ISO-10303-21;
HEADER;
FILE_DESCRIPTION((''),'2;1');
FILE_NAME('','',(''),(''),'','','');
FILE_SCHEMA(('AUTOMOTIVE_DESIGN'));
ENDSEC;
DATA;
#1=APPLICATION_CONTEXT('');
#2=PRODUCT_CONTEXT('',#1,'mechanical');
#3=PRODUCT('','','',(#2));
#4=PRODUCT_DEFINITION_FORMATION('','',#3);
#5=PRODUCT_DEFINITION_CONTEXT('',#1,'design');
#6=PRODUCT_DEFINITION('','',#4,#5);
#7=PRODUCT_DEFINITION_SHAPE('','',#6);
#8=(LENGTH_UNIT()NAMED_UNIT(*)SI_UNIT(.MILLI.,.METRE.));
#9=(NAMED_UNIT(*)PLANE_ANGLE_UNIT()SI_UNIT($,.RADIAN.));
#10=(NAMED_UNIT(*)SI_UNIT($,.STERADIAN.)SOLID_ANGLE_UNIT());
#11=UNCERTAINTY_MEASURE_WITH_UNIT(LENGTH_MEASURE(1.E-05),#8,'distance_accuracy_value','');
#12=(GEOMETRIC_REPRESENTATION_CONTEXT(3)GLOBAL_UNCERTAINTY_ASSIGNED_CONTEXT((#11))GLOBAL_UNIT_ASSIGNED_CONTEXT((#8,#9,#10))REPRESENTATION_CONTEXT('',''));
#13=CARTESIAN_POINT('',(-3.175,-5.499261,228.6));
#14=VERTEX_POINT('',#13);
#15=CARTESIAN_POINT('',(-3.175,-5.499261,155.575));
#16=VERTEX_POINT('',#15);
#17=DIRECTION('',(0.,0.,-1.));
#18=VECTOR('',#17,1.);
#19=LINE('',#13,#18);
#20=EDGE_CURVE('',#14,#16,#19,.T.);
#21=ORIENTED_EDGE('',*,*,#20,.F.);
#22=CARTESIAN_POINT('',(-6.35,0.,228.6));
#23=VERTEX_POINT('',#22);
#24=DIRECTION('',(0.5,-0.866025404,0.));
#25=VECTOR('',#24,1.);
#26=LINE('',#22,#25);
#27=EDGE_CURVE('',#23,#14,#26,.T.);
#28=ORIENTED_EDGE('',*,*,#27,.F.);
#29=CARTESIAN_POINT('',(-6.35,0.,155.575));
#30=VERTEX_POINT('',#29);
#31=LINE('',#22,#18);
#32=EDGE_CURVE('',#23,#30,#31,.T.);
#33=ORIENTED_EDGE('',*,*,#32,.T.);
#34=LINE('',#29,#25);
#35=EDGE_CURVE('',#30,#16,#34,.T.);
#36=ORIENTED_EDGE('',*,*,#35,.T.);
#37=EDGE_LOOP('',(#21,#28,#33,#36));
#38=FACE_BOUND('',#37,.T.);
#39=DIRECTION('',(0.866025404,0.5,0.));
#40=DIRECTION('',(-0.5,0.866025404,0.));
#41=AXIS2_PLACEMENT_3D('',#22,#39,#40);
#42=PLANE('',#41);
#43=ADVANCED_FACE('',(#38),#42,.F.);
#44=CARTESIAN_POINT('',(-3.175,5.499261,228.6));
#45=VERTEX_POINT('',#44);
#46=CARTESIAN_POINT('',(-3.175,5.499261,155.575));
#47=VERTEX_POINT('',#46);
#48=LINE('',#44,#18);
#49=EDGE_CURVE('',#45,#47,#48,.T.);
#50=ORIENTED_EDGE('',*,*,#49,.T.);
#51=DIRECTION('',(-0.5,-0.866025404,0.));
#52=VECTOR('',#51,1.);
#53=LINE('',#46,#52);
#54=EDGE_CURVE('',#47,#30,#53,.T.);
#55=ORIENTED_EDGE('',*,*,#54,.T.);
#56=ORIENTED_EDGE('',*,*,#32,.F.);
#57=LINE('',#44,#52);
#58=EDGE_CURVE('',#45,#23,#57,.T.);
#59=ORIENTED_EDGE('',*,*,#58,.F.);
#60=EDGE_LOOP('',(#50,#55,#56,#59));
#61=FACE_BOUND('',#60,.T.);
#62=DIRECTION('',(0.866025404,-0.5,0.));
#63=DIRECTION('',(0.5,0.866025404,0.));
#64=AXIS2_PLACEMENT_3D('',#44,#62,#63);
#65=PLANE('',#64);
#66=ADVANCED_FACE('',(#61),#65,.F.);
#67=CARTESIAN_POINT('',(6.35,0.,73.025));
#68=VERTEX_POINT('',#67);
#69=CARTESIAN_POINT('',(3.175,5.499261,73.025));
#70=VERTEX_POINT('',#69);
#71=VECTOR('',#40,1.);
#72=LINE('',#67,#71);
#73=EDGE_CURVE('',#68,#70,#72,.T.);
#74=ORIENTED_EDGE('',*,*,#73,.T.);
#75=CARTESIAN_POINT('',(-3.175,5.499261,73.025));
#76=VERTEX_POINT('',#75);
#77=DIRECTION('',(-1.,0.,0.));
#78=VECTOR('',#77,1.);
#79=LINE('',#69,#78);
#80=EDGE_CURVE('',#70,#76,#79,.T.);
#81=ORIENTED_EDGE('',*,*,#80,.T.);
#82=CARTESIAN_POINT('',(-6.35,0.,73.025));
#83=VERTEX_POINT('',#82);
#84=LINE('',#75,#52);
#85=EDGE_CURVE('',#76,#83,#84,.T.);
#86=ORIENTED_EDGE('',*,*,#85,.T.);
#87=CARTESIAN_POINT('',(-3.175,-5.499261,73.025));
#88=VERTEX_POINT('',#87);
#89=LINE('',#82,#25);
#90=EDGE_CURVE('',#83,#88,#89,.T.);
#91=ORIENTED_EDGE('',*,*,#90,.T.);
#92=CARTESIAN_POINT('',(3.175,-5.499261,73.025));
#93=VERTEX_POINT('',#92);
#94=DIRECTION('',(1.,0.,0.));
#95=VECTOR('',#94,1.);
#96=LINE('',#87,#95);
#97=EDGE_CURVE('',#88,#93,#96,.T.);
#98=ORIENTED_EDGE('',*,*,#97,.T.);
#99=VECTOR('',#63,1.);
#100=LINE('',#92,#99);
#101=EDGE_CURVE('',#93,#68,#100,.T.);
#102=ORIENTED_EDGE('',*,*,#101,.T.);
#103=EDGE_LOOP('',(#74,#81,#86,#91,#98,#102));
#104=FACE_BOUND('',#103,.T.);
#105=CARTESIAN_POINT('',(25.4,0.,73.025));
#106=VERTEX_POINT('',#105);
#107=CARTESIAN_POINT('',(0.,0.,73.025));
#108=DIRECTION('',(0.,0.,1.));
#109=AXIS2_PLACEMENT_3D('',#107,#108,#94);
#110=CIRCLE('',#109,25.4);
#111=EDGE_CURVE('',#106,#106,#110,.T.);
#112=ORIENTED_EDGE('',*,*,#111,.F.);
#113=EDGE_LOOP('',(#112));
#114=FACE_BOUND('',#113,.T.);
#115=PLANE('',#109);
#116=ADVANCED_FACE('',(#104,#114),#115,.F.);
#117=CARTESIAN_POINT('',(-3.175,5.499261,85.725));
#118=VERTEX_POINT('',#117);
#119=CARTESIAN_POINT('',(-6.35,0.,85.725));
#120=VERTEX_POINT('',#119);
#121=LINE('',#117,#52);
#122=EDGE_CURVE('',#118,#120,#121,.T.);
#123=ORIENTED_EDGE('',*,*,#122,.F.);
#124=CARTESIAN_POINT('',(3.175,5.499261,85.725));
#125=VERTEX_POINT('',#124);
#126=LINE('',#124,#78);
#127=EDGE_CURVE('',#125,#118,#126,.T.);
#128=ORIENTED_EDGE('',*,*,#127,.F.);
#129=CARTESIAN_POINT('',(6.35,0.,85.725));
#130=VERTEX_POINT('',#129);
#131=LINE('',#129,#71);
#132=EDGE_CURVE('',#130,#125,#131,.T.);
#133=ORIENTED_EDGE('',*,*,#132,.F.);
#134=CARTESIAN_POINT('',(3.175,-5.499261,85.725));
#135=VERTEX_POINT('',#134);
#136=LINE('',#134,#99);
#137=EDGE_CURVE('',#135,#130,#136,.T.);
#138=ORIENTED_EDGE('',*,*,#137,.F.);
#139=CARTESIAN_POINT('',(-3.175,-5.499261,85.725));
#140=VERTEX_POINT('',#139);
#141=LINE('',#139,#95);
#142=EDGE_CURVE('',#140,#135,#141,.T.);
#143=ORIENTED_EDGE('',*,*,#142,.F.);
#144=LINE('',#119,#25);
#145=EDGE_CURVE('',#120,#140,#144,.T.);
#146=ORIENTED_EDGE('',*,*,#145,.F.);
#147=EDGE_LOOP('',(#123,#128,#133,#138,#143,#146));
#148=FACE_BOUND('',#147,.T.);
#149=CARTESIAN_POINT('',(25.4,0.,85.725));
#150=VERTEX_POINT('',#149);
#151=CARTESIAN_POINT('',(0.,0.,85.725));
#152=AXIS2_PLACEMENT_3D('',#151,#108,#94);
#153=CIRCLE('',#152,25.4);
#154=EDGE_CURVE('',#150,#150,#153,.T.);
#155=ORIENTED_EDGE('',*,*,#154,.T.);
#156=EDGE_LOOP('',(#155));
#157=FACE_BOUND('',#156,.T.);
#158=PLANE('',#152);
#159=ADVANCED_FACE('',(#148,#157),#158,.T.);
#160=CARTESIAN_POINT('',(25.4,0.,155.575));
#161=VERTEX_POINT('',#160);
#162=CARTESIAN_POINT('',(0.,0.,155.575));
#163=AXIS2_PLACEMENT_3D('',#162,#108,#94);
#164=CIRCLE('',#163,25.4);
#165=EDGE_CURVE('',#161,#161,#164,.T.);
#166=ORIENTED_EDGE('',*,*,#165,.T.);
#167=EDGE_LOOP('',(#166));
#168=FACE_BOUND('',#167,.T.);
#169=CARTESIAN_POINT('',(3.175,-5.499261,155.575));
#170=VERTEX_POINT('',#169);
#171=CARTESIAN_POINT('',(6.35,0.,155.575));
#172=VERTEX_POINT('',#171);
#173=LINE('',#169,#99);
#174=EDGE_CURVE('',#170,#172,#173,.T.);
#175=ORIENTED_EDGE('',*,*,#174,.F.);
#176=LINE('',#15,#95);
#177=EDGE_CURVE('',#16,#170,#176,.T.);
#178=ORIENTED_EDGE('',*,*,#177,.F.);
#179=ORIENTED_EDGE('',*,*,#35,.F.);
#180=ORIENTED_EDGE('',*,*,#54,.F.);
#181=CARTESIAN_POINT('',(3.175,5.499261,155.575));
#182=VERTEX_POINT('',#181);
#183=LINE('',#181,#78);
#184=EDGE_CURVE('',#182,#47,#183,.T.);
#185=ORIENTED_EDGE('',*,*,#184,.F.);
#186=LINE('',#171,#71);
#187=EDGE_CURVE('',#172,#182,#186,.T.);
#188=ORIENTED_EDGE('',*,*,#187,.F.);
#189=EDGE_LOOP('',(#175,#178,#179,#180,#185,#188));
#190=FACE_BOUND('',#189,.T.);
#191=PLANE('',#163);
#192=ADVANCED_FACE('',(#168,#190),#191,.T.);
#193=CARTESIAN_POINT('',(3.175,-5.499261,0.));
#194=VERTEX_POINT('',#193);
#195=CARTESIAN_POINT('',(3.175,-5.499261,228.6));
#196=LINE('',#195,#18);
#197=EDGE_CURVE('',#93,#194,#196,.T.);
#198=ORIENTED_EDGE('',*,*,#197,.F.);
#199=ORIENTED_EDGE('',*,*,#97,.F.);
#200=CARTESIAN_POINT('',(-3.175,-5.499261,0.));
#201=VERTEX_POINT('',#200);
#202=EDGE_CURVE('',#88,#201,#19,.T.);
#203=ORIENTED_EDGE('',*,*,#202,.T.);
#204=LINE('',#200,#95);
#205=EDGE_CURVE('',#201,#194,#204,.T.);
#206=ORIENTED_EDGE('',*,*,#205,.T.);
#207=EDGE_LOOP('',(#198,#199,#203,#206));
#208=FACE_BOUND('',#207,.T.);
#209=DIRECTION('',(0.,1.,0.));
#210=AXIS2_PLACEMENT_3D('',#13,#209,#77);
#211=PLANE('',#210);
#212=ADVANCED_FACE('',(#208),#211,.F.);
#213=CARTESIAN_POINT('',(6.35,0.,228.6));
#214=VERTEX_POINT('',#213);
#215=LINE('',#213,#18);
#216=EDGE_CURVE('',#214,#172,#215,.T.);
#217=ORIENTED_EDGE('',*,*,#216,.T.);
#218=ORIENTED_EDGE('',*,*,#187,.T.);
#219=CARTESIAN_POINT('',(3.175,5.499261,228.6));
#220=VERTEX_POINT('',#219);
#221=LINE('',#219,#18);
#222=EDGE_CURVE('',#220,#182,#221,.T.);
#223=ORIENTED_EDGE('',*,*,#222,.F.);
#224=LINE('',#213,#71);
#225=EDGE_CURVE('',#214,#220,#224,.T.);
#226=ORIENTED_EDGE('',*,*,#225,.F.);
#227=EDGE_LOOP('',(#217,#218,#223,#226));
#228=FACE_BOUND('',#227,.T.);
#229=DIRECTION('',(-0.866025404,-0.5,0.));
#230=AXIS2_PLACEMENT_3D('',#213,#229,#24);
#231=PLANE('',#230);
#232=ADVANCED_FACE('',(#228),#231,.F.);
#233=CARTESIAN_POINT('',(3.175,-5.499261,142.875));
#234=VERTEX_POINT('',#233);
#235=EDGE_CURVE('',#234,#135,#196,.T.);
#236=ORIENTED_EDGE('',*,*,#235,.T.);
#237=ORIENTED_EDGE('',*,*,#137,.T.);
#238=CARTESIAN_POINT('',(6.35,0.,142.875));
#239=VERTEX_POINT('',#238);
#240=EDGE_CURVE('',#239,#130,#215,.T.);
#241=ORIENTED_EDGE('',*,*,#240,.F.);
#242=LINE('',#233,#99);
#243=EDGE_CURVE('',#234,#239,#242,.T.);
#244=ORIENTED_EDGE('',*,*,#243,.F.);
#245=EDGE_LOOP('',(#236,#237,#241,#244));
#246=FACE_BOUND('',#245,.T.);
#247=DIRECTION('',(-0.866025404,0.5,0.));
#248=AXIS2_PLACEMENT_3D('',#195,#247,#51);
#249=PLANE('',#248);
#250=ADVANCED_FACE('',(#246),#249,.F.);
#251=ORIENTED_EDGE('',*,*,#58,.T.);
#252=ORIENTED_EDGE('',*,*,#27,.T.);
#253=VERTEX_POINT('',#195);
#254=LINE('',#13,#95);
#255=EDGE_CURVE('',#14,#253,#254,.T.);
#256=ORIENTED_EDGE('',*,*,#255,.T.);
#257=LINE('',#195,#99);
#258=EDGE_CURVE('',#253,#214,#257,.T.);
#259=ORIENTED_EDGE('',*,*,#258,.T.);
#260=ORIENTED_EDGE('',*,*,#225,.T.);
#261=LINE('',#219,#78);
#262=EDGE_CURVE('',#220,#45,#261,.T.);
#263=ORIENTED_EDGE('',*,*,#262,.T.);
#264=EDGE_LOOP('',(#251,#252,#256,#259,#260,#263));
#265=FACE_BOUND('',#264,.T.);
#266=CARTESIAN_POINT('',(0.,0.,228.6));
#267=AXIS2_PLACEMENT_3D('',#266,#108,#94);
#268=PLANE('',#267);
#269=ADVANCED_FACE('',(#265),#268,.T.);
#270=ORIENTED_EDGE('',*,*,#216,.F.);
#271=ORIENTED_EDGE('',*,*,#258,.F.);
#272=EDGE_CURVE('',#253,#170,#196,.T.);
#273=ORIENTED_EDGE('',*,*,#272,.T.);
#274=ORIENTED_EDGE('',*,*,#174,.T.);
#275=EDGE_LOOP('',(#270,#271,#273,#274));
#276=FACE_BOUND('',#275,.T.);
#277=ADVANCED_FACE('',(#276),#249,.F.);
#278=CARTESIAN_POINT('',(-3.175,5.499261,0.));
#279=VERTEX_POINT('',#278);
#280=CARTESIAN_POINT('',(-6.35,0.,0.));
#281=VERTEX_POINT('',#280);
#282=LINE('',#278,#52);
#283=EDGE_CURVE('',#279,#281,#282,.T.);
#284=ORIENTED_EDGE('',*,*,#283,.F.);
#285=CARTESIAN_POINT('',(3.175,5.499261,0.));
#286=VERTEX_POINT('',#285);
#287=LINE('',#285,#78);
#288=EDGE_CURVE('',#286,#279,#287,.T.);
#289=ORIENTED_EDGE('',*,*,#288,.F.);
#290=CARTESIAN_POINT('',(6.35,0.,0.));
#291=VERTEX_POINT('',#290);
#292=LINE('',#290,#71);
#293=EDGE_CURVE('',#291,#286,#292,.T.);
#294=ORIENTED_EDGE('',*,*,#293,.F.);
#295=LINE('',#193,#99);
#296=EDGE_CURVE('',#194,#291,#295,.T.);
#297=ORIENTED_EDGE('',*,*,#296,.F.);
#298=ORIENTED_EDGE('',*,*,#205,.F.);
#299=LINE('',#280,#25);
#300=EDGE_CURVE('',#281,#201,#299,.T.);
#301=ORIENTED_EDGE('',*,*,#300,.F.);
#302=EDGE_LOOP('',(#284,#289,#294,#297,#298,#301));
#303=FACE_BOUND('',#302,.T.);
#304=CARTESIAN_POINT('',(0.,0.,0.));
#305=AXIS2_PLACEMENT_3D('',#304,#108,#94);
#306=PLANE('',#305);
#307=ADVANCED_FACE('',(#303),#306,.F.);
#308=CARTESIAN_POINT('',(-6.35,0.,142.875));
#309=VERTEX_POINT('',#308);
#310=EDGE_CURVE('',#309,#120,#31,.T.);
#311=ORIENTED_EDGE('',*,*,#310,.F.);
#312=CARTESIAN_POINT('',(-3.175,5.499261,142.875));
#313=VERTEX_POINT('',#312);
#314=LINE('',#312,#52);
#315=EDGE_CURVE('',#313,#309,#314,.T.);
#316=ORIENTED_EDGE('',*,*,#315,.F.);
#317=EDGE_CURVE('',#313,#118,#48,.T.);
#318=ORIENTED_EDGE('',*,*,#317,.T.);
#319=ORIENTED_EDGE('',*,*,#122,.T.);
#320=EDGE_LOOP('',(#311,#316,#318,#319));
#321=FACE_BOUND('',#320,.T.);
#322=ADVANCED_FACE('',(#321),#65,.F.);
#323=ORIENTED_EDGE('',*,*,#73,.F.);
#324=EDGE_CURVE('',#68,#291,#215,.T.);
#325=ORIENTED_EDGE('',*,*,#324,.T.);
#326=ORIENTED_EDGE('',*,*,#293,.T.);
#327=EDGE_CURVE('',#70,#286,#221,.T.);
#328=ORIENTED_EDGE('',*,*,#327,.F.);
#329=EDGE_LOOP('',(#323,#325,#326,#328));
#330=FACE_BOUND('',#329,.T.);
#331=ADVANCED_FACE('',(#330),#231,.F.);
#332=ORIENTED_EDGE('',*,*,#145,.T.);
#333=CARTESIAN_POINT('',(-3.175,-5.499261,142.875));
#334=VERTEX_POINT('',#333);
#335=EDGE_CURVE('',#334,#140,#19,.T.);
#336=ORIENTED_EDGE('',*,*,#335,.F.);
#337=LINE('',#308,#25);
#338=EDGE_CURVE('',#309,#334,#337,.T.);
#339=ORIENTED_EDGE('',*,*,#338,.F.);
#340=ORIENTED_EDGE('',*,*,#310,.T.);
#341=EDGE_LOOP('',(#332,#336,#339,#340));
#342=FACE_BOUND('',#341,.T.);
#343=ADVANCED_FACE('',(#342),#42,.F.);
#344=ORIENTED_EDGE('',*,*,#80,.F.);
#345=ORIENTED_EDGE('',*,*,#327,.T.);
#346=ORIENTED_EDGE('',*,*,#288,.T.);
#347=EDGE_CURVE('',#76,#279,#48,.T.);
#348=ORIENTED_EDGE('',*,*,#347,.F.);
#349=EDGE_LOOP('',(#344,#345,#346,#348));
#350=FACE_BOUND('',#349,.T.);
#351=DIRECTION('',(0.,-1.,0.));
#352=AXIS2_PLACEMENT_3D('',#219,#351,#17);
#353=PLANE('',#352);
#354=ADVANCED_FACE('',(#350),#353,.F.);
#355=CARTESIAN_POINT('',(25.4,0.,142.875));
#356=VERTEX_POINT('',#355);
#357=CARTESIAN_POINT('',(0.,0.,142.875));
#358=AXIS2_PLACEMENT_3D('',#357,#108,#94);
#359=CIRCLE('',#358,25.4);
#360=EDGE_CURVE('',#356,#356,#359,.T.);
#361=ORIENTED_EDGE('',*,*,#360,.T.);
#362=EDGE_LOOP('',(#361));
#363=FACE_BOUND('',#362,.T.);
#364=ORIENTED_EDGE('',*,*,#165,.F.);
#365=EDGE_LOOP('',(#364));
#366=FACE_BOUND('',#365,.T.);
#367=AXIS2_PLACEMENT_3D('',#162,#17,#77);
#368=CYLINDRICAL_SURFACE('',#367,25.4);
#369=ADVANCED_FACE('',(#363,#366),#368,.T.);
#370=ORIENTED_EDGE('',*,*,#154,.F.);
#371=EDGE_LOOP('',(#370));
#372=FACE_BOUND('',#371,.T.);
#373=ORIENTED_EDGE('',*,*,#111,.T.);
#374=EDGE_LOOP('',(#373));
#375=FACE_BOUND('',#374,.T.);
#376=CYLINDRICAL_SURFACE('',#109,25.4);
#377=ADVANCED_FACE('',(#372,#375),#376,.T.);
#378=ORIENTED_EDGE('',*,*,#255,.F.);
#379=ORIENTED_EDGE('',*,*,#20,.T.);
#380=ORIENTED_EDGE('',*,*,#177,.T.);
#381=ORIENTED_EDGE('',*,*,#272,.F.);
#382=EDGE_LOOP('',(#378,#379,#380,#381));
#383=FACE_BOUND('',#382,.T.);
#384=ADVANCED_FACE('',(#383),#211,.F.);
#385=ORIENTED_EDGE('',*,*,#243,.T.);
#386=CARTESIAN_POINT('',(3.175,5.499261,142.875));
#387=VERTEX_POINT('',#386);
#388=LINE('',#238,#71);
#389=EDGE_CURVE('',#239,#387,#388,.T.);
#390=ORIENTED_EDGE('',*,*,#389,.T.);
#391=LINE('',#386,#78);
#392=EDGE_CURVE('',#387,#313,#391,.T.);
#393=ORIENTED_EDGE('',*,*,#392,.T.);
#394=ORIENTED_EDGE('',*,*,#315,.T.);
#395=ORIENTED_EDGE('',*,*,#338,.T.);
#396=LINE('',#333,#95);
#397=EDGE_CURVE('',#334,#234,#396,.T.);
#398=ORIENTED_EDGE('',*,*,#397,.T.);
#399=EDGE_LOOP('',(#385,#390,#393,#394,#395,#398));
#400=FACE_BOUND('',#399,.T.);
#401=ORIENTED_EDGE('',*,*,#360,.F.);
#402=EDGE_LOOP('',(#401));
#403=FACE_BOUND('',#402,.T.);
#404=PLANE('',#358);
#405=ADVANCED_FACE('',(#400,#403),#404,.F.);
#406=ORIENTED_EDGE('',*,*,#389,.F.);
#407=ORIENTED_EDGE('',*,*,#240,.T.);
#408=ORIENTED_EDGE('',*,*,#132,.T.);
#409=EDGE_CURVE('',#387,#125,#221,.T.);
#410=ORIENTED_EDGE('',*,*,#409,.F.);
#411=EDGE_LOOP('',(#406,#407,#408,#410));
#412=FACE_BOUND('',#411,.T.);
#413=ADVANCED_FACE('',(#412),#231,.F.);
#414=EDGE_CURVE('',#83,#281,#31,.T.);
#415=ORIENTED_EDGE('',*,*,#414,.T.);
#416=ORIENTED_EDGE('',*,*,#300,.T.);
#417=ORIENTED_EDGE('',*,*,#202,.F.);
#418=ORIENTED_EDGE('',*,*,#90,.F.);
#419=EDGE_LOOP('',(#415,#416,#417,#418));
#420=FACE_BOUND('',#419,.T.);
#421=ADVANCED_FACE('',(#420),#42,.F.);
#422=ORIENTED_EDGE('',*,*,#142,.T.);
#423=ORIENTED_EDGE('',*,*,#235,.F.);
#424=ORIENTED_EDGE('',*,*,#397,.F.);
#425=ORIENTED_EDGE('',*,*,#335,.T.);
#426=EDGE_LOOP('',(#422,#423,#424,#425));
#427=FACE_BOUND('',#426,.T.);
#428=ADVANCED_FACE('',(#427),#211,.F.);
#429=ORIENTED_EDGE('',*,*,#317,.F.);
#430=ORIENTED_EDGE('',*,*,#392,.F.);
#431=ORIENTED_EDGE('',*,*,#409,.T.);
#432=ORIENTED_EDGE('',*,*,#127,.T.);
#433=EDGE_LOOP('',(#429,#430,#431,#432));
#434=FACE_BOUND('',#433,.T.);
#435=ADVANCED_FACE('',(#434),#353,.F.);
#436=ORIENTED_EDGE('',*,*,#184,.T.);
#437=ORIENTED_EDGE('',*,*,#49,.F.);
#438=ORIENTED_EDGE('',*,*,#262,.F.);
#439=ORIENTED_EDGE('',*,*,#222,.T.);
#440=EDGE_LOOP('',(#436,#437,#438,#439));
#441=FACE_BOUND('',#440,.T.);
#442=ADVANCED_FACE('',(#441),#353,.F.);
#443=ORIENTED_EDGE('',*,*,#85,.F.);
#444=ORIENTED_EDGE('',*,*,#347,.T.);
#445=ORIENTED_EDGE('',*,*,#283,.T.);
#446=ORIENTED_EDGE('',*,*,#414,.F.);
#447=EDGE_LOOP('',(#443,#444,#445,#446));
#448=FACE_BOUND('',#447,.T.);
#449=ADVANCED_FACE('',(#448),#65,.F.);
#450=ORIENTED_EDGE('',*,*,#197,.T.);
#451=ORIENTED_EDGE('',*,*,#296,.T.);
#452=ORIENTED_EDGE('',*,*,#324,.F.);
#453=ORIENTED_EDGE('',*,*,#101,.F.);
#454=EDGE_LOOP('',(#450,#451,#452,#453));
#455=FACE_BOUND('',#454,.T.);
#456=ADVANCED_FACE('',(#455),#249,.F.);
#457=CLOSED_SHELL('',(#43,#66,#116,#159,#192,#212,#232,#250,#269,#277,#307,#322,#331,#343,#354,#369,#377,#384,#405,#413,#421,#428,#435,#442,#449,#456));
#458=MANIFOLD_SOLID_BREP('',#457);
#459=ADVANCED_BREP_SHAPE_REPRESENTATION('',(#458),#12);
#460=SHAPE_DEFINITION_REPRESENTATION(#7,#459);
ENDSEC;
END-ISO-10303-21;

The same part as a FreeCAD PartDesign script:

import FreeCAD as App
import Part
import Sketcher

V = App.Vector
Q = App.Units.Quantity

doc = App.newDocument("Part")
body = doc.addObject("PartDesign::Body", "Body")

# Sketch on XY plane
sketch1 = body.newObject("Sketcher::SketchObject", "Sketch")
sketch1.AttachmentSupport = (doc.getObject("XY_Plane"), [""])
sketch1.MapMode = "FlatFace"
sketch1.addGeometry([
    Part.LineSegment(V(-3, 5, 0), V(-6, 0, 0)),  # 0
    Part.LineSegment(V(-6, 0, 0), V(-3, -5, 0)),  # 1
    Part.LineSegment(V(-3, -5, 0), V(3, -5, 0)),  # 2
    Part.LineSegment(V(3, -5, 0), V(6, 0, 0)),  # 3
    Part.LineSegment(V(6, 0, 0), V(3, 5, 0)),  # 4
    Part.LineSegment(V(3, 5, 0), V(-3, 5, 0)),  # 5
], False)
sketch1.addConstraint([
    Sketcher.Constraint("Coincident", 0, 2, 1, 1),
    Sketcher.Constraint("Coincident", 1, 2, 2, 1),
    Sketcher.Constraint("Coincident", 2, 2, 3, 1),
    Sketcher.Constraint("Coincident", 3, 2, 4, 1),
    Sketcher.Constraint("Coincident", 4, 2, 5, 1),
    Sketcher.Constraint("Coincident", 5, 2, 0, 1),
    Sketcher.Constraint("Horizontal", 2),
    Sketcher.Constraint("Horizontal", 5),
    Sketcher.Constraint("Symmetric", 0, 2, 3, 2, -1, 1),
    Sketcher.Constraint("Symmetric", 1, 2, 4, 2, -1, 1),
    Sketcher.Constraint("PointOnObject", 0, 2, -1),
    Sketcher.Constraint("Parallel", 0, 3),
    Sketcher.Constraint("Vertical", 2, 2, 4, 2),
    Sketcher.Constraint("Angle", 0, Q("-120 deg")),
    Sketcher.Constraint("DistanceX", 2, 1, 2, 2, Q("0.25 in")),
    Sketcher.Constraint("DistanceX", 0, 2, 3, 2, Q("0.5 in")),
])
pad1 = body.newObject("PartDesign::Pad", "Pad")
pad1.Profile = sketch1
pad1.Length = Q("9 in")

# Sketch on XY plane
sketch2 = body.newObject("Sketcher::SketchObject", "Sketch001")
sketch2.AttachmentSupport = (doc.getObject("XY_Plane"), [""])
sketch2.MapMode = "FlatFace"
sketch2.AttachmentOffset = App.Placement(V(0, 0, 3.375 * 25.4), App.Rotation())
sketch2.addGeometry(Part.Circle(V(0, 0, 0), V(0, 0, 1), 25), False)
sketch2.addConstraint([
    Sketcher.Constraint("Coincident", 0, 3, -1, 1),
    Sketcher.Constraint("Diameter", 0, Q("2 in")),
])
pad2 = body.newObject("PartDesign::Pad", "Pad001")
pad2.Profile = sketch2
pad2.Length = Q("0.5 in")
pad2.Reversed = True

# Sketch on XY plane
sketch3 = body.newObject("Sketcher::SketchObject", "Sketch002")
sketch3.AttachmentSupport = (doc.getObject("XY_Plane"), [""])
sketch3.MapMode = "FlatFace"
sketch3.AttachmentOffset = App.Placement(V(0, 0, 5.625 * 25.4), App.Rotation())
sketch3.addGeometry(Part.Circle(V(0, 0, 0), V(0, 0, 1), 25), False)
sketch3.addConstraint([
    Sketcher.Constraint("Coincident", 0, 3, -1, 1),
    Sketcher.Constraint("Diameter", 0, Q("2 in")),
])
pad3 = body.newObject("PartDesign::Pad", "Pad002")
pad3.Profile = sketch3
pad3.Length = Q("0.5 in")

doc.recompute()
